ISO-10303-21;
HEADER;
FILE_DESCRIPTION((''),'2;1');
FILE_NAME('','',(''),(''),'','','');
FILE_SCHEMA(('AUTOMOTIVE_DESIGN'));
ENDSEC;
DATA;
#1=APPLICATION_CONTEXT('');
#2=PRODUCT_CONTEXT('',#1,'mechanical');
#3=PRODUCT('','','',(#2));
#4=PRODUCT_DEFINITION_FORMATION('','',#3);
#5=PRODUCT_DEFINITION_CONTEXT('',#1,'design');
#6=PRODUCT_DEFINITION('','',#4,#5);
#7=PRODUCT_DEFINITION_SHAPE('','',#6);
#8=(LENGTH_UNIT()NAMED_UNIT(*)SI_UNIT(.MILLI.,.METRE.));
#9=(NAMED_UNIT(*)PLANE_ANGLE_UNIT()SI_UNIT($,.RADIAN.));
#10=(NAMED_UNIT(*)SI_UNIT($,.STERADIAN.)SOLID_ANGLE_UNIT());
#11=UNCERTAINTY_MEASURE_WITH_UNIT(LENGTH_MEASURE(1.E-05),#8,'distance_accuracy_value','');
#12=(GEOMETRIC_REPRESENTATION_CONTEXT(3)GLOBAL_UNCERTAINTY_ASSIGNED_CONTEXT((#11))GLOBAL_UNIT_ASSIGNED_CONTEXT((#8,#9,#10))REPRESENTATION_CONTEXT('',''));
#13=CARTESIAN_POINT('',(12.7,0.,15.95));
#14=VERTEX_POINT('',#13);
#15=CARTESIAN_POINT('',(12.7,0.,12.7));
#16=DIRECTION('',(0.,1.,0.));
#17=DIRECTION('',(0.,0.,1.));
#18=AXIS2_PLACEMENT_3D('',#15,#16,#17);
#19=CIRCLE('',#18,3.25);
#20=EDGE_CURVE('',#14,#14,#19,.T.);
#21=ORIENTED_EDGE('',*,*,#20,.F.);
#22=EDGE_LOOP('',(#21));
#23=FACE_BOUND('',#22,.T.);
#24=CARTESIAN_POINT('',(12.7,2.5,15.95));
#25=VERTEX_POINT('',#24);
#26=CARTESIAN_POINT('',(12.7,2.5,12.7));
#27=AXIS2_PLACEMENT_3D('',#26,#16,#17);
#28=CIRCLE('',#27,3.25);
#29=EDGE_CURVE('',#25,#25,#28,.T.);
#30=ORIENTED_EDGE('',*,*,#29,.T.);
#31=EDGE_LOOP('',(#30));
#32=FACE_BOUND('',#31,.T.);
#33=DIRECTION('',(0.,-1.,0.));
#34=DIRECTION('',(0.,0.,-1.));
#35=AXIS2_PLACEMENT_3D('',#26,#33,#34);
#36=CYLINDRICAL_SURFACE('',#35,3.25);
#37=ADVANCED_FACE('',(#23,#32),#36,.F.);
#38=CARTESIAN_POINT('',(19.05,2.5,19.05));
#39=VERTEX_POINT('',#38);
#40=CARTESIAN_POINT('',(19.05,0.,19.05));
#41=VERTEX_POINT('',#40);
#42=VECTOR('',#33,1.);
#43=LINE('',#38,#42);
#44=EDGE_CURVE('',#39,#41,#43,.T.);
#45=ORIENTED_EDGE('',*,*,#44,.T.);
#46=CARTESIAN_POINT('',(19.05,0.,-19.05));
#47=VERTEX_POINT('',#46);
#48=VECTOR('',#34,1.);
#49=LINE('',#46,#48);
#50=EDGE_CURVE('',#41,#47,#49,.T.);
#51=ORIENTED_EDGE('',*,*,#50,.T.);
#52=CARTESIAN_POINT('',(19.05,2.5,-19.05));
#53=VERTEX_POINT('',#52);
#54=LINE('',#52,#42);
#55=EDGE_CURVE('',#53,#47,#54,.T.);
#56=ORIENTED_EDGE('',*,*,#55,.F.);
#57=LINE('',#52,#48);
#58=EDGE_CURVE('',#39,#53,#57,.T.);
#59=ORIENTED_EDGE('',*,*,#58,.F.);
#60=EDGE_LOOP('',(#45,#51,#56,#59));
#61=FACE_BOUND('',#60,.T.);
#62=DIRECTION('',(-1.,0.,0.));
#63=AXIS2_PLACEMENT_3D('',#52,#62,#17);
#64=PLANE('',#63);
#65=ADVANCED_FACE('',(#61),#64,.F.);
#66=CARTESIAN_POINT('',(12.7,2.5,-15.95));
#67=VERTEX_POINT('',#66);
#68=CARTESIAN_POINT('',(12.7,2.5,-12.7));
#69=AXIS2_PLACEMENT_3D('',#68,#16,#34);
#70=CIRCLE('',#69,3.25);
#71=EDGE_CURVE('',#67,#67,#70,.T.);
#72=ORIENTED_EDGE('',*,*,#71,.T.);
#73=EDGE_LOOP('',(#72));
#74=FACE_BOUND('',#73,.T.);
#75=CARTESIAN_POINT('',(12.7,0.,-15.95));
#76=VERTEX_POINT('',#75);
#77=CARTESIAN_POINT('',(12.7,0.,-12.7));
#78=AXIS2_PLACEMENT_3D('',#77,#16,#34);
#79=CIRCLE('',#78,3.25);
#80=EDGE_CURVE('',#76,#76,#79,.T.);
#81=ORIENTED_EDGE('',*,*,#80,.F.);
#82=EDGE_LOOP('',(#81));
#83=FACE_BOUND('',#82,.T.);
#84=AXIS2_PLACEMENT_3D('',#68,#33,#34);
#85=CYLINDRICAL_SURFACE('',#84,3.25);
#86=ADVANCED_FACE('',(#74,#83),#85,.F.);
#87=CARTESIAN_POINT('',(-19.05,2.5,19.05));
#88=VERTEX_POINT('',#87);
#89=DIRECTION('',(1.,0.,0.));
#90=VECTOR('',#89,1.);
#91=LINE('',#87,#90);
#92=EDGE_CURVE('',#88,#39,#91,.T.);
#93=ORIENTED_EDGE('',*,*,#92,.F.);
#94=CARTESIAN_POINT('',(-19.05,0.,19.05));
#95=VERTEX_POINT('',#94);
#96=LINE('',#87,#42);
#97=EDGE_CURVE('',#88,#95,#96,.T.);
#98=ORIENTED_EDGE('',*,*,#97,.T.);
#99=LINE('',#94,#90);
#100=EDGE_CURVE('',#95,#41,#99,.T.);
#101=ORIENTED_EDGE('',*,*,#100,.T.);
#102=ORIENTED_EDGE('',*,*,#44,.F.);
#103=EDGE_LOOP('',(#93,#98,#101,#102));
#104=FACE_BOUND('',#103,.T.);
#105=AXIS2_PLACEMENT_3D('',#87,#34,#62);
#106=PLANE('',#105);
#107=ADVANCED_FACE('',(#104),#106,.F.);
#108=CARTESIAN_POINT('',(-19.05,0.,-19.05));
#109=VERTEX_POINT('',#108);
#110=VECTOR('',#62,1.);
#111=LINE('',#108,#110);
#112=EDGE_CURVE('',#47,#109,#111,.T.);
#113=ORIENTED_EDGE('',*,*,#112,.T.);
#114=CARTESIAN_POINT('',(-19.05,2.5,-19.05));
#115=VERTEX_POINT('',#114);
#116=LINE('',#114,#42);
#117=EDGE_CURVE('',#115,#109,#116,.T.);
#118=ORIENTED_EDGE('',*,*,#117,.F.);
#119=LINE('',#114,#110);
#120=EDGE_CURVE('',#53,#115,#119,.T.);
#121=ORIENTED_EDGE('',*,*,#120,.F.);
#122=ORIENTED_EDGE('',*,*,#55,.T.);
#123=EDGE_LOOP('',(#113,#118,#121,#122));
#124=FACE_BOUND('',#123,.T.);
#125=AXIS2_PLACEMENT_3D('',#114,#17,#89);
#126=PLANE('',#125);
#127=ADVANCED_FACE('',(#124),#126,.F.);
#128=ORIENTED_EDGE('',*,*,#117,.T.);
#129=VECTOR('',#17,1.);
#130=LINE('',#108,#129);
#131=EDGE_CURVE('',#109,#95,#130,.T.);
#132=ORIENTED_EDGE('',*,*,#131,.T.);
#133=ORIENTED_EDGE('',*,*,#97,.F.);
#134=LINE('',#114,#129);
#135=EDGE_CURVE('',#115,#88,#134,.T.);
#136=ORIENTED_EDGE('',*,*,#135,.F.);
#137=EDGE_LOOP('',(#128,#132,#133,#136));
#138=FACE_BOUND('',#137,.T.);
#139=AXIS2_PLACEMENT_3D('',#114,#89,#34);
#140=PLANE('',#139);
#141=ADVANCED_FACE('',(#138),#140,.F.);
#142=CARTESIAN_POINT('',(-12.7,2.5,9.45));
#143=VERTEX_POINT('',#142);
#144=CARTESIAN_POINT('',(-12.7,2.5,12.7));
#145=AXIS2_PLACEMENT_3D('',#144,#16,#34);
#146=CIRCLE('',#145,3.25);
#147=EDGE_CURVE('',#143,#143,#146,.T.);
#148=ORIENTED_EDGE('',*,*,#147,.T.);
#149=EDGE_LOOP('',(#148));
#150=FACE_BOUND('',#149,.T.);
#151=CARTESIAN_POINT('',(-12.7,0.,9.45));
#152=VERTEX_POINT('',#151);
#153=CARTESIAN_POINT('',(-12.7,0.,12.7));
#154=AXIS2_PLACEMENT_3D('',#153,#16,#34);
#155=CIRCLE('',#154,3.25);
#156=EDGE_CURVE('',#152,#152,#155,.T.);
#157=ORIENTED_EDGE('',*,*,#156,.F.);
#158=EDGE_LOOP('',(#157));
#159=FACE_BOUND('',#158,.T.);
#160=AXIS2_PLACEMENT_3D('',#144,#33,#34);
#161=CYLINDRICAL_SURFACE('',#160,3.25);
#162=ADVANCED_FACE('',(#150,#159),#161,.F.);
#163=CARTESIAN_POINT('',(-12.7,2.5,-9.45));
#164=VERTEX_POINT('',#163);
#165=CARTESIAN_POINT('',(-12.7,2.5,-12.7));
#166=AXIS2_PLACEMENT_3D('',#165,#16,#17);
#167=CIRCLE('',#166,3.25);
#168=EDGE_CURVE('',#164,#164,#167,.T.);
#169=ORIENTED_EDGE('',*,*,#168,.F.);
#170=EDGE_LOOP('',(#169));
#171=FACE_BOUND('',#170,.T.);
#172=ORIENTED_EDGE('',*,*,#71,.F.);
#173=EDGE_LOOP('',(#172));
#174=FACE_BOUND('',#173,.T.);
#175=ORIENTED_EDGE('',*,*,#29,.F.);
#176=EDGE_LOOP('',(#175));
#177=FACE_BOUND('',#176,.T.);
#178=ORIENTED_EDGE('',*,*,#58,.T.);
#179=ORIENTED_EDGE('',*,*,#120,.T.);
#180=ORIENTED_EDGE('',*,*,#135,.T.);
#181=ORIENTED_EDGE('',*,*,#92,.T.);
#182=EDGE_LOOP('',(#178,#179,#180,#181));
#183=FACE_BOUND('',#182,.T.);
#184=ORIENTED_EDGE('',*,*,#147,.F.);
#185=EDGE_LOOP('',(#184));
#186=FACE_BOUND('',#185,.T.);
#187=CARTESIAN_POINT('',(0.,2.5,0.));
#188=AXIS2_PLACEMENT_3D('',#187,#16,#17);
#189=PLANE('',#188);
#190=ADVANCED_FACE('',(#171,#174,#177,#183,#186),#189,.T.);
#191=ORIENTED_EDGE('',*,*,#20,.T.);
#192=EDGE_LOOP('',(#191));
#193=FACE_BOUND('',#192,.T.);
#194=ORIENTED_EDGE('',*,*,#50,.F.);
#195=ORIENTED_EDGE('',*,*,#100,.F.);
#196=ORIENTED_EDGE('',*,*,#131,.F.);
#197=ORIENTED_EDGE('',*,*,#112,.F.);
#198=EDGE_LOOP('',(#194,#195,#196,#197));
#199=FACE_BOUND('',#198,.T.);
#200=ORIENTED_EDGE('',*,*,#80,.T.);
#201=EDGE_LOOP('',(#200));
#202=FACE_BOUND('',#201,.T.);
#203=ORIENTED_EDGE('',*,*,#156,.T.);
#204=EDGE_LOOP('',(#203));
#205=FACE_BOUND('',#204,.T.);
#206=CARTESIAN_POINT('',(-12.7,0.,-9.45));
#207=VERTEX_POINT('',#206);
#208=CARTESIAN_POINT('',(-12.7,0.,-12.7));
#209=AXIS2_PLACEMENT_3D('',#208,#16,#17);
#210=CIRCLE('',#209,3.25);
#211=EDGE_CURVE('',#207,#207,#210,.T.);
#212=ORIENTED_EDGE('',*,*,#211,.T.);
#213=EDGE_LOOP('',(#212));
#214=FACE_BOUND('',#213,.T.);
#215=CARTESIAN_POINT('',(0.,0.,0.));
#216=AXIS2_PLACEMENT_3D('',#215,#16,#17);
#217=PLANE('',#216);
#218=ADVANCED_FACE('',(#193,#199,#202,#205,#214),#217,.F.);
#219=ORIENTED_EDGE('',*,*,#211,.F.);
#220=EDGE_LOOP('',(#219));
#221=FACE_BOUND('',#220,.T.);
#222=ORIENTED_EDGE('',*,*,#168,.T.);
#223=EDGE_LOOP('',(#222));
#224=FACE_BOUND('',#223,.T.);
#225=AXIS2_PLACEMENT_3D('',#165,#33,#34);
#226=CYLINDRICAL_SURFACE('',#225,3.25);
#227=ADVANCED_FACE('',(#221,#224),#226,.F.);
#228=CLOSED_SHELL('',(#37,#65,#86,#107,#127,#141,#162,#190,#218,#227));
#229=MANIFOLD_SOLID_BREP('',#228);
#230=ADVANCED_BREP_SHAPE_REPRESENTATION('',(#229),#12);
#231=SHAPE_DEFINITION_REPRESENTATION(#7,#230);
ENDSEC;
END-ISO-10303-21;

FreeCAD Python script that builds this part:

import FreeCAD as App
import Part
import Sketcher

V = App.Vector


def add_polygon(sketch, points):
    """Adds a closed chain of lines whose ends are joined by coincident constraints."""
    first, n = sketch.GeometryCount, len(points)
    for a, b in zip(points, points[1:] + points[:1]):
        sketch.addGeometry(Part.LineSegment(App.Vector(*a, 0), App.Vector(*b, 0)), False)
    for i in range(n):
        sketch.addConstraint(Sketcher.Constraint("Coincident", first + i, 2, first + (i + 1) % n, 1))

doc = App.newDocument("Part")
params = doc.addObject("Spreadsheet::Sheet", "Params")
for row, (alias, value) in enumerate([
    ("sketch1_diameter", "6.5 mm"),
    ("sketch1_width", "38.1 mm"),
    ("pad1_length", "2.5 mm"),
], start=1):
    params.set(f"A{row}", alias)
    params.set(f"B{row}", "=" + value)
    params.setAlias(f"B{row}", alias)

body = doc.addObject("PartDesign::Body", "Body")

# Sketch on XZ plane
sketch1 = doc.addObject("Sketcher::SketchObject", "Sketch")
body.addObject(sketch1)
sketch1.AttachmentSupport = (doc.XZ_Plane, [""])
sketch1.MapMode = "FlatFace"
add_polygon(sketch1, [(-19.1, -19.1), (-19.1, 19.1), (19.1, 19.1), (19.1, -19.1)])  # lines 0-3
sketch1.addGeometry(Part.Circle(V(-12.7, 12.7, 0), V(0, 0, 1), 3.2), False)  # 4
sketch1.addGeometry(Part.Circle(V(12.7, 12.7, 0), V(0, 0, 1), 3.2), False)  # 5
sketch1.addGeometry(Part.Circle(V(-12.7, -12.7, 0), V(0, 0, 1), 3.2), False)  # 6
sketch1.addGeometry(Part.Circle(V(12.7, -12.7, 0), V(0, 0, 1), 3.2), False)  # 7
sketch1.addConstraint(Sketcher.Constraint("Vertical", 0))
sketch1.addConstraint(Sketcher.Constraint("Horizontal", 1))
sketch1.addConstraint(Sketcher.Constraint("Vertical", 2))
sketch1.addConstraint(Sketcher.Constraint("Horizontal", 3))
sketch1.addConstraint(Sketcher.Constraint("Equal", 4, 5))
sketch1.addConstraint(Sketcher.Constraint("Equal", 5, 6))
sketch1.addConstraint(Sketcher.Constraint("Equal", 6, 7))
sketch1.addConstraint(Sketcher.Constraint("Symmetric", 5, 3, 6, 3, -1, 1))
sketch1.addConstraint(Sketcher.Constraint("Symmetric", 4, 3, 7, 3, -1, 1))
sketch1.addConstraint(Sketcher.Constraint("Symmetric", 0, 2, 2, 2, -1, 1))
sketch1.addConstraint(Sketcher.Constraint("Symmetric", 4, 3, 5, 3, -2))
sketch1.addConstraint(Sketcher.Constraint("Equal", 3, 0))
sketch1.addConstraint(Sketcher.Constraint("Diameter", 4, 6.5))
sketch1.addConstraint(Sketcher.Constraint("DistanceX", 1, 1, 1, 2, 38.1))
sketch1.addConstraint(Sketcher.Constraint("DistanceX", 4, 3, -1, 1, 12.7))
sketch1.addConstraint(Sketcher.Constraint("DistanceY", -1, 1, 4, 3, 12.7))
sketch1.setExpression("Constraints[16]", "Params.sketch1_diameter")
sketch1.setExpression("Constraints[17]", "Params.sketch1_width")
pad1 = doc.addObject("PartDesign::Pad", "Pad")
body.addObject(pad1)
pad1.Profile = sketch1
pad1.setExpression("Length", "Params.pad1_length")
pad1.Reversed = True

doc.recompute()
